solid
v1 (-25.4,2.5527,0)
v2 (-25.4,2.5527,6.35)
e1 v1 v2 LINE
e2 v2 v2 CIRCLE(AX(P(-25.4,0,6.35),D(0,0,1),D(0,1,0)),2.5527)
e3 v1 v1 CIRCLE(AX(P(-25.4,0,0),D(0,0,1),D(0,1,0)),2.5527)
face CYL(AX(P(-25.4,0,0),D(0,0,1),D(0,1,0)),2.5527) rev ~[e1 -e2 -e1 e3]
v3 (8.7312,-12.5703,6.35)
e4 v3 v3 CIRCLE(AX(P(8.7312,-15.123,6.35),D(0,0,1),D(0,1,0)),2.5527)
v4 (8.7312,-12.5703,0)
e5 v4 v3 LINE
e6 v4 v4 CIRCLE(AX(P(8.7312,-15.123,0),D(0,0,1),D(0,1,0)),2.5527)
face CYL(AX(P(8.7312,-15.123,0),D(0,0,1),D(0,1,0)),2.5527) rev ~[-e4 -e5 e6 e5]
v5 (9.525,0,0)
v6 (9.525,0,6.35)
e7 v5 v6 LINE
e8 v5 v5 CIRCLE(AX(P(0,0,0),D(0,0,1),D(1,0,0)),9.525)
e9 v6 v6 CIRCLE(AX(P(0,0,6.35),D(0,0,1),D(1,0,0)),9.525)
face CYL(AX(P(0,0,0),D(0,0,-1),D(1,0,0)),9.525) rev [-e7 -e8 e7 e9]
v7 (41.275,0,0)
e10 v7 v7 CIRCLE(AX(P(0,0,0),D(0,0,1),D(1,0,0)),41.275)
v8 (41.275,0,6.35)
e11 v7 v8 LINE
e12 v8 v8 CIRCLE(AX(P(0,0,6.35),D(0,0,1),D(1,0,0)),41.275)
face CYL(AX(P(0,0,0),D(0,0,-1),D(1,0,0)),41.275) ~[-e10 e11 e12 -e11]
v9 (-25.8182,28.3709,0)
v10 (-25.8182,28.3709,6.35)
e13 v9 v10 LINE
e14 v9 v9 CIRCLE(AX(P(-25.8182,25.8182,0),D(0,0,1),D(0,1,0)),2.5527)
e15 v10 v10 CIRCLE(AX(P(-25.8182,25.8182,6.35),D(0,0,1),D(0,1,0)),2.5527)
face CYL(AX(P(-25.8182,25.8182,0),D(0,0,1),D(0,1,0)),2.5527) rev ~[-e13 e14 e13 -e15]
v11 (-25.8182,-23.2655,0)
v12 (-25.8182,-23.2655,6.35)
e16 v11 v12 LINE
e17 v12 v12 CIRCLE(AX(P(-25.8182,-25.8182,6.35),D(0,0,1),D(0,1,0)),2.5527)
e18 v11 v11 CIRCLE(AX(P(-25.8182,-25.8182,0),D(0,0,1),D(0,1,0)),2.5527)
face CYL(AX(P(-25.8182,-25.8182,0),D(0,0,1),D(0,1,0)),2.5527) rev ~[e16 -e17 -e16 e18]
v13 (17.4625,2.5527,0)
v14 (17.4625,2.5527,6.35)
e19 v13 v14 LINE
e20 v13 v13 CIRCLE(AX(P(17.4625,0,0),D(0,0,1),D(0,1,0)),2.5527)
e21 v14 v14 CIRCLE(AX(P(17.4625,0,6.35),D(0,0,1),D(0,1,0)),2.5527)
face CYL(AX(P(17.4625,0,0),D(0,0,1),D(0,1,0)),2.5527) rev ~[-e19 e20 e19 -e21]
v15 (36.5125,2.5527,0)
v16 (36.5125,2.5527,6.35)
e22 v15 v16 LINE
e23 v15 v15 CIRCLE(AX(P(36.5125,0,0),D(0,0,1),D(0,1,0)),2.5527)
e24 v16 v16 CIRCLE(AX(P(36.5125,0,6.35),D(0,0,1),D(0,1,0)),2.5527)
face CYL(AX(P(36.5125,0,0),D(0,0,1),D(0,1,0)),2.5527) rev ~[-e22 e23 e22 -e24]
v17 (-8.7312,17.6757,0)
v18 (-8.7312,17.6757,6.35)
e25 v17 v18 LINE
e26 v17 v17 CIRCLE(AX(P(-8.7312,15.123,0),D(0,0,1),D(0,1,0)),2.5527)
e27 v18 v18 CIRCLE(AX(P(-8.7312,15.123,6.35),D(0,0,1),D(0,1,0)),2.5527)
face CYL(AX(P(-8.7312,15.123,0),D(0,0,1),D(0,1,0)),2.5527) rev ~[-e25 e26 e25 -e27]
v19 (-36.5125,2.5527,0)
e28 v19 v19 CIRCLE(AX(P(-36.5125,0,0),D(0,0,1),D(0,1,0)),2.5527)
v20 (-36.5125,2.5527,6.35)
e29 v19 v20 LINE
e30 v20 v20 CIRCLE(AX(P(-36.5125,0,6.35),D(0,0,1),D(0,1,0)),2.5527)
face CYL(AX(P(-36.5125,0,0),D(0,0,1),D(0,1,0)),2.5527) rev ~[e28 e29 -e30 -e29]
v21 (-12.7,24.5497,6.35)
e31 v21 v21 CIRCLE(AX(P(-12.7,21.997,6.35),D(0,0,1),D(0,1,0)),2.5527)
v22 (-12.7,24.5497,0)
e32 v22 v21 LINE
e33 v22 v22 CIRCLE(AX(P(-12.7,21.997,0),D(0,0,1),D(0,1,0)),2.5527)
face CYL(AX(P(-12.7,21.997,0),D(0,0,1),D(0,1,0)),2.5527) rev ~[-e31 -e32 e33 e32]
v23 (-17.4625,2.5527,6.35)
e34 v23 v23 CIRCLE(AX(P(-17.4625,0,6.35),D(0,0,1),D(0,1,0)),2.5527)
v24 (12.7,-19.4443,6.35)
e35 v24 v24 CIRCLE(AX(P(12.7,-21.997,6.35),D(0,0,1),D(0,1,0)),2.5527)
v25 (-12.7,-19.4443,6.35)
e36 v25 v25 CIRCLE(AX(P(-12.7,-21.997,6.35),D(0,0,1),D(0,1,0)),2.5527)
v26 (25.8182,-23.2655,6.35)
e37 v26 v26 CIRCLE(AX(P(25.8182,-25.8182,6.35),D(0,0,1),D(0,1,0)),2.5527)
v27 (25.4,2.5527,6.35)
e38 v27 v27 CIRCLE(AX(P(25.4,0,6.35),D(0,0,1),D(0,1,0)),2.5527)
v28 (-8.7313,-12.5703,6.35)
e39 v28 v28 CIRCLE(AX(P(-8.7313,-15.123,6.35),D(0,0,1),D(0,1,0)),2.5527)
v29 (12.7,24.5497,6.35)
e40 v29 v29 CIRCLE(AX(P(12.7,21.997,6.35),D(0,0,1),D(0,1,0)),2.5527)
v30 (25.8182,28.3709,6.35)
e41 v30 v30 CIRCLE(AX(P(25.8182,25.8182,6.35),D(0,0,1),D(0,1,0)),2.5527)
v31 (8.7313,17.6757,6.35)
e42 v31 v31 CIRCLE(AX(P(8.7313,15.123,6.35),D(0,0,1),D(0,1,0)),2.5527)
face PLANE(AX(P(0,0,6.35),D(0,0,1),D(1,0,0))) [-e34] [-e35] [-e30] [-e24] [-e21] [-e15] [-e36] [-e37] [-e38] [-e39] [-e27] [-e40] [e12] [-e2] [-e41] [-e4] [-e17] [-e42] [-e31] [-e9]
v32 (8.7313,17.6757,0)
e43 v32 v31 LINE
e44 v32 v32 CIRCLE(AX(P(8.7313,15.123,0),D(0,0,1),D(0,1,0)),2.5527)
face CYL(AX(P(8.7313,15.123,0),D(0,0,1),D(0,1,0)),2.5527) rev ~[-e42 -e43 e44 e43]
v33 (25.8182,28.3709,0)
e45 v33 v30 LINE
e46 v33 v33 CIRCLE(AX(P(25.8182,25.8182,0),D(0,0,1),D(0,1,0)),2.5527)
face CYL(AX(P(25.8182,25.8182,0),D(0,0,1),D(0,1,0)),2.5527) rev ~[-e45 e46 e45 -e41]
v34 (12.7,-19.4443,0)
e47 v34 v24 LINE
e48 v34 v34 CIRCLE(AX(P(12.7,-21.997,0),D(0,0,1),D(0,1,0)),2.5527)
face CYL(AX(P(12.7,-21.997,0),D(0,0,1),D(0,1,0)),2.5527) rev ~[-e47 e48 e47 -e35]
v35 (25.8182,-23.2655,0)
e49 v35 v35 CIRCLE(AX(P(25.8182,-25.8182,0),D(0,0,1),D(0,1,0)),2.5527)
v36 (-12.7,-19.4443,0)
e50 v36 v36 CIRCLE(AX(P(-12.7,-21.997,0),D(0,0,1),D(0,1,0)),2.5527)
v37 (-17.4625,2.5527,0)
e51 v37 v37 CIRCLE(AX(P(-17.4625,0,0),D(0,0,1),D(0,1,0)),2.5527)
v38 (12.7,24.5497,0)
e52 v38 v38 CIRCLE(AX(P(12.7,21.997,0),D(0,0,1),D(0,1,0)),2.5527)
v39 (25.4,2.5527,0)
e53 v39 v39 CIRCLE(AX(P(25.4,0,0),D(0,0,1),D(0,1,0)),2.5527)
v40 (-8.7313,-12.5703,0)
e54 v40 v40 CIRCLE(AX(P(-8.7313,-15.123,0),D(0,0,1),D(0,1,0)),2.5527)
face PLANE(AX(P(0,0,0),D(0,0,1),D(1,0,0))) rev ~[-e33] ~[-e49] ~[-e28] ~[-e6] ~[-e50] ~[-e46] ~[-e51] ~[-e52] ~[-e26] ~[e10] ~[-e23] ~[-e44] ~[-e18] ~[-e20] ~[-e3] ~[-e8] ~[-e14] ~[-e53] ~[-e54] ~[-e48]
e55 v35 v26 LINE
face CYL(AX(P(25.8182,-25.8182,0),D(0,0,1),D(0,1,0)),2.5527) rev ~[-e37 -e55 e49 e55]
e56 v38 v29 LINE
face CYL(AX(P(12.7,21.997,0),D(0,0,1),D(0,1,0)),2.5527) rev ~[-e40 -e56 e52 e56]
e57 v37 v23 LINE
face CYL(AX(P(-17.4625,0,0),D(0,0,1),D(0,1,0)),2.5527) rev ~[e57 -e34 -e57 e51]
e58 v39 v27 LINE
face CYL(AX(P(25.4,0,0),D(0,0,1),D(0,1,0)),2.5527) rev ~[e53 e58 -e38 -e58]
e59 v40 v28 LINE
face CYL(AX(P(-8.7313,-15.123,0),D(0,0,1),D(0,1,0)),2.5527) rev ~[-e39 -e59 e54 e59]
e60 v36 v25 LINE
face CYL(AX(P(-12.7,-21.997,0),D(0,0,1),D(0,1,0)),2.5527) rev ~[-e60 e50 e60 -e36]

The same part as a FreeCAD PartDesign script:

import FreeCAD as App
import Part
import Sketcher
Q = App.Units.Quantity

doc = App.newDocument("Part")
body = doc.addObject("PartDesign::Body", "Body")

# Sketch on XY plane
sketch1 = body.newObject("Sketcher::SketchObject", "Sketch")
sketch1.AttachmentSupport = (doc.getObject("XY_Plane"), [""])
sketch1.MapMode = "FlatFace"
sketch1.addGeometry(Part.Circle(App.Vector(0, 0, 0), App.Vector(0, 0, 1), 41), False)
sketch1.addGeometry(Part.Circle(App.Vector(0, 0, 0), App.Vector(0, 0, 1), 10), False)
sketch1.addConstraint(Sketcher.Constraint("Coincident", 0, 3, -1, 1))
sketch1.addConstraint(Sketcher.Constraint("Coincident", 1, 3, -1, 1))
sketch1.addConstraint(Sketcher.Constraint("Diameter", 1, Q("0.75 in")))
sketch1.addConstraint(Sketcher.Constraint("Diameter", 0, Q("3.25 in")))
pad1 = body.newObject("PartDesign::Pad", "Pad")
pad1.Profile = sketch1
pad1.Length = Q("0.25 in")

# Sketch on XY plane
sketch2 = body.newObject("Sketcher::SketchObject", "Sketch001")
sketch2.AttachmentSupport = (doc.getObject("XY_Plane"), [""])
sketch2.MapMode = "FlatFace"
sketch2.addGeometry(Part.Circle(App.Vector(-17.5, 0, 0), App.Vector(0, 0, 1), 2.6), False)
sketch2.addGeometry(Part.Circle(App.Vector(-36.5, 0, 0), App.Vector(0, 0, 1), 2.6), False)
sketch2.addGeometry(Part.Circle(App.Vector(36.5, 0, 0), App.Vector(0, 0, 1), 2.6), False)
sketch2.addGeometry(Part.Circle(App.Vector(-25.4, 0, 0), App.Vector(0, 0, 1), 2.6), False)
sketch2.addGeometry(Part.Circle(App.Vector(-12.7, -22, 0), App.Vector(0, 0, 1), 2.6), False)
sketch2.addGeometry(Part.Circle(App.Vector(-8.7, -15.1, 0), App.Vector(0, 0, 1), 2.6), False)
sketch2.addGeometry(Part.Circle(App.Vector(12.7, -22, 0), App.Vector(0, 0, 1), 2.6), False)
sketch2.addGeometry(Part.Circle(App.Vector(8.7, -15.1, 0), App.Vector(0, 0, 1), 2.6), False)
sketch2.addGeometry(Part.Circle(App.Vector(25.4, 0, 0), App.Vector(0, 0, 1), 2.6), False)
sketch2.addGeometry(Part.Circle(App.Vector(17.5, 0, 0), App.Vector(0, 0, 1), 2.6), False)
sketch2.addGeometry(Part.Circle(App.Vector(12.7, 22, 0), App.Vector(0, 0, 1), 2.6), False)
sketch2.addGeometry(Part.Circle(App.Vector(8.7, 15.1, 0), App.Vector(0, 0, 1), 2.6), False)
sketch2.addGeometry(Part.Circle(App.Vector(-12.7, 22, 0), App.Vector(0, 0, 1), 2.6), False)
sketch2.addGeometry(Part.Circle(App.Vector(-8.7, 15.1, 0), App.Vector(0, 0, 1), 2.6), False)
sketch2.addGeometry(Part.Circle(App.Vector(-25.8, 25.8, 0), App.Vector(0, 0, 1), 2.6), False)
sketch2.addGeometry(Part.Circle(App.Vector(25.8, 25.8, 0), App.Vector(0, 0, 1), 2.6), False)
sketch2.addGeometry(Part.Circle(App.Vector(25.8, -25.8, 0), App.Vector(0, 0, 1), 2.6), False)
sketch2.addGeometry(Part.Circle(App.Vector(-25.8, -25.8, 0), App.Vector(0, 0, 1), 2.6), False)
sketch2.addConstraint(Sketcher.Constraint("Equal", 0, 1))
sketch2.addConstraint(Sketcher.Constraint("Equal", 1, 2))
sketch2.addConstraint(Sketcher.Constraint("Equal", 2, 3))
sketch2.addConstraint(Sketcher.Constraint("Equal", 3, 4))
sketch2.addConstraint(Sketcher.Constraint("Equal", 4, 5))
sketch2.addConstraint(Sketcher.Constraint("Equal", 5, 6))
sketch2.addConstraint(Sketcher.Constraint("Equal", 6, 7))
sketch2.addConstraint(Sketcher.Constraint("Equal", 7, 8))
sketch2.addConstraint(Sketcher.Constraint("Equal", 8, 9))
sketch2.addConstraint(Sketcher.Constraint("Equal", 9, 10))
sketch2.addConstraint(Sketcher.Constraint("Equal", 10, 11))
sketch2.addConstraint(Sketcher.Constraint("Equal", 11, 12))
sketch2.addConstraint(Sketcher.Constraint("Equal", 12, 13))
sketch2.addConstraint(Sketcher.Constraint("Equal", 13, 14))
sketch2.addConstraint(Sketcher.Constraint("Equal", 14, 15))
sketch2.addConstraint(Sketcher.Constraint("Equal", 15, 16))
sketch2.addConstraint(Sketcher.Constraint("Equal", 16, 17))
sketch2.addConstraint(Sketcher.Constraint("Symmetric", 1, 3, 2, 3, -1, 1))
sketch2.addConstraint(Sketcher.Constraint("Symmetric", 3, 3, 8, 3, -1, 1))
sketch2.addConstraint(Sketcher.Constraint("Symmetric", 0, 3, 9, 3, -1, 1))
sketch2.addConstraint(Sketcher.Constraint("Symmetric", 4, 3, 10, 3, -1, 1))
sketch2.addConstraint(Sketcher.Constraint("Symmetric", 5, 3, 11, 3, -1, 1))
sketch2.addConstraint(Sketcher.Constraint("Symmetric", 6, 3, 12, 3, -1, 1))
sketch2.addConstraint(Sketcher.Constraint("Symmetric", 7, 3, 13, 3, -1, 1))
sketch2.addConstraint(Sketcher.Constraint("Symmetric", 14, 3, 16, 3, -1, 1))
sketch2.addConstraint(Sketcher.Constraint("Symmetric", 15, 3, 17, 3, -1, 1))
sketch2.addConstraint(Sketcher.Constraint("Symmetric", 4, 3, 6, 3, -2))
sketch2.addConstraint(Sketcher.Constraint("Symmetric", 5, 3, 7, 3, -2))
sketch2.addConstraint(Sketcher.Constraint("Symmetric", 14, 3, 15, 3, -2))
sketch2.addConstraint(Sketcher.Constraint("PointOnObject", 0, 3, -1))
sketch2.addConstraint(Sketcher.Constraint("PointOnObject", 1, 3, -1))
sketch2.addConstraint(Sketcher.Constraint("PointOnObject", 3, 3, -1))
sketch2.addConstraint(Sketcher.Constraint("Diameter", 0, Q("0.201 in")))
sketch2.addConstraint(Sketcher.Constraint("DistanceX", 3, 3, -1, 1, Q("1 in")))
sketch2.addConstraint(Sketcher.Constraint("DistanceX", 4, 3, 6, 3, Q("1 in")))
sketch2.addConstraint(Sketcher.Constraint("DistanceX", 1, 3, 0, 3, Q("0.75 in")))
sketch2.addConstraint(Sketcher.Constraint("DistanceX", 0, 3, -1, 1, Q("0.6875 in")))
sketch2.addConstraint(Sketcher.Constraint("DistanceX", 5, 3, -1, 1, Q("0.343752 in")))
sketch2.addConstraint(Sketcher.Constraint("DistanceY", 5, 3, -1, 1, Q("0.5954 in")))
sketch2.addConstraint(Sketcher.Constraint("DistanceY", 4, 3, -1, 1, Q("21.997 mm")))
sketch2.addConstraint(Sketcher.Constraint("DistanceX", 14, 3, -1, 1, Q("25.8182 mm")))
sketch2.addConstraint(Sketcher.Constraint("DistanceY", -1, 1, 14, 3, Q("25.8182 mm")))
doc.recompute()
hole = body.newObject("PartDesign::Hole", "Hole")
hole.Profile = sketch2
hole.ThreadType = "None"
hole.Diameter = Q("0.201 in")
hole.DepthType = "ThroughAll"
hole.Reversed = True

doc.recompute()
